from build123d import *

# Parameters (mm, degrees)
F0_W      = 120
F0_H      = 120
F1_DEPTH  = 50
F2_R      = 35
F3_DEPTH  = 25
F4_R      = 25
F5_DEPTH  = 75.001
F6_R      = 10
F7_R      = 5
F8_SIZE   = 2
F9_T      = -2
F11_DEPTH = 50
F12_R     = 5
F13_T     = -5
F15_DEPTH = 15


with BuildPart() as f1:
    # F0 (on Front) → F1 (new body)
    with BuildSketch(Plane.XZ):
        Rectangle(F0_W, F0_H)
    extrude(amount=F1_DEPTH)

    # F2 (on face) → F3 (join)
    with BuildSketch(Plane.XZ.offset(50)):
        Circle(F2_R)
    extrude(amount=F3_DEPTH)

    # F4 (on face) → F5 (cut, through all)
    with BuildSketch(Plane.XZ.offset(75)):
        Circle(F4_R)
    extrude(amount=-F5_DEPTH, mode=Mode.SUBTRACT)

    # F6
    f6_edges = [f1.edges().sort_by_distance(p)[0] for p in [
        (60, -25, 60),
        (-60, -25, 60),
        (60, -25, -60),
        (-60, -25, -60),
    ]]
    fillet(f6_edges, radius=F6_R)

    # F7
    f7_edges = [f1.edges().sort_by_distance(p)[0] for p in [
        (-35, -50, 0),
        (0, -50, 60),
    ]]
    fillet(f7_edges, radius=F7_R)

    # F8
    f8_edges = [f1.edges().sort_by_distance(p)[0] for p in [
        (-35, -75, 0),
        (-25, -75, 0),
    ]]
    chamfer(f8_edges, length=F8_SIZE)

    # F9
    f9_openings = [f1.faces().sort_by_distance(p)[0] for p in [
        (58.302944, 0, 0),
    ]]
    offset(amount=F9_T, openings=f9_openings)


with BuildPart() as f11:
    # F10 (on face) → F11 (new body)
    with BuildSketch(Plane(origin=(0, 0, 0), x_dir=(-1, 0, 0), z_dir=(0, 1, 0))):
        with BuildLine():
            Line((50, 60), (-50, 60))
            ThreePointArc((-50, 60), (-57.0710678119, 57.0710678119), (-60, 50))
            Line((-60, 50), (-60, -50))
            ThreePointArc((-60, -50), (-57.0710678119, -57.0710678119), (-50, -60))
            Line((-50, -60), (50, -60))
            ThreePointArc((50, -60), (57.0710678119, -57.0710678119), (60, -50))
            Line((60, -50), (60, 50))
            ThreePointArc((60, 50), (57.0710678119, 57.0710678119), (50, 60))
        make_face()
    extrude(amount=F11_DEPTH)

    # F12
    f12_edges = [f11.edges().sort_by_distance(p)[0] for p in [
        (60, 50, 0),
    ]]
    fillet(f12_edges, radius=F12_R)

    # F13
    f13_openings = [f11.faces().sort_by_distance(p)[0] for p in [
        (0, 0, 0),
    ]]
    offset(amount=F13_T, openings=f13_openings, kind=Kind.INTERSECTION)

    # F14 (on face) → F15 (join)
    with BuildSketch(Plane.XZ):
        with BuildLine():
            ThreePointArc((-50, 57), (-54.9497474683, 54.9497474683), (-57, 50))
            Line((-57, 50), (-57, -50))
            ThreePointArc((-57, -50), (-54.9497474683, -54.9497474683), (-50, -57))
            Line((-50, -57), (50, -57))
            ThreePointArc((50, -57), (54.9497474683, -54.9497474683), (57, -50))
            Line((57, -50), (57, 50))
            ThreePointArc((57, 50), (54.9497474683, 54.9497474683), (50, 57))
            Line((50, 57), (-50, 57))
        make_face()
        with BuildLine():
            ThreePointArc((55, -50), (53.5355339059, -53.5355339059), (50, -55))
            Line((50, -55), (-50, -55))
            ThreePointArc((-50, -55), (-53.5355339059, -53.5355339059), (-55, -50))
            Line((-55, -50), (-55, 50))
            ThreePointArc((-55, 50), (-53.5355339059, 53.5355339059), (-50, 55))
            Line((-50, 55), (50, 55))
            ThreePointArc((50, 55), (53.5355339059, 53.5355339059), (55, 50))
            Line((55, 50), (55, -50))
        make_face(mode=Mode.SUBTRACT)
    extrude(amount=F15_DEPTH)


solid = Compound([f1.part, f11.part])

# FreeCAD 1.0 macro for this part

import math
import FreeCAD as App
import Part
import Sketcher


def edges_at(feature, points):
    """Names of the edges that pass closest to the given points."""
    edges = feature.Shape.Edges
    near = lambda p: min(range(len(edges)), key=lambda i: edges[i].distToShape(Part.Vertex(*p))[0])
    return sorted({f"Edge{near(p) + 1}" for p in points})


def faces_at(feature, points):
    """Names of the faces that lie closest to the given points."""
    faces = feature.Shape.Faces
    near = lambda p: min(range(len(faces)), key=lambda i: faces[i].distToShape(Part.Vertex(*p))[0])
    return sorted({f"Face{near(p) + 1}" for p in points})

doc = App.newDocument("Part")
body = doc.addObject("PartDesign::Body", "Body")

# Sketch on XZ plane
sketch1 = body.newObject("Sketcher::SketchObject", "Sketch")
sketch1.AttachmentSupport = (doc.getObject("XZ_Plane"), [""])
sketch1.MapMode = "FlatFace"
sketch1.addGeometry(Part.LineSegment(App.Vector(-60, 60, 0), App.Vector(-60, -60, 0)), False)
sketch1.addGeometry(Part.LineSegment(App.Vector(-60, -60, 0), App.Vector(60, -60, 0)), False)
sketch1.addGeometry(Part.LineSegment(App.Vector(60, -60, 0), App.Vector(60, 60, 0)), False)
sketch1.addGeometry(Part.LineSegment(App.Vector(60, 60, 0), App.Vector(-60, 60, 0)), False)
sketch1.addConstraint(Sketcher.Constraint("Coincident", 0, 2, 1, 1))
sketch1.addConstraint(Sketcher.Constraint("Coincident", 1, 2, 2, 1))
sketch1.addConstraint(Sketcher.Constraint("Coincident", 2, 2, 3, 1))
sketch1.addConstraint(Sketcher.Constraint("Coincident", 3, 2, 0, 1))
sketch1.addConstraint(Sketcher.Constraint("Vertical", 0))
sketch1.addConstraint(Sketcher.Constraint("Horizontal", 1))
sketch1.addConstraint(Sketcher.Constraint("Vertical", 2))
sketch1.addConstraint(Sketcher.Constraint("Horizontal", 3))
sketch1.addConstraint(Sketcher.Constraint("Symmetric", 0, 2, 2, 2, -1, 1))
sketch1.addConstraint(Sketcher.Constraint("Equal", 3, 0))
sketch1.addConstraint(Sketcher.Constraint("DistanceX", 1, 1, 1, 2, 120.0))
pad1 = body.newObject("PartDesign::Pad", "Pad")
pad1.Profile = sketch1
pad1.Length = 50

# Sketch on XZ plane
sketch2 = body.newObject("Sketcher::SketchObject", "Sketch001")
sketch2.AttachmentSupport = (doc.getObject("XZ_Plane"), [""])
sketch2.MapMode = "FlatFace"
sketch2.AttachmentOffset = App.Placement(App.Vector(0, 0, 50), App.Rotation())
sketch2.addGeometry(Part.Circle(App.Vector(0, 0, 0), App.Vector(0, 0, 1), 35), False)
sketch2.addConstraint(Sketcher.Constraint("Coincident", 0, 3, -1, 1))
sketch2.addConstraint(Sketcher.Constraint("Diameter", 0, 70.0))
pad2 = body.newObject("PartDesign::Pad", "Pad001")
pad2.Profile = sketch2
pad2.Length = 25

# Sketch on XZ plane
sketch3 = body.newObject("Sketcher::SketchObject", "Sketch002")
sketch3.AttachmentSupport = (doc.getObject("XZ_Plane"), [""])
sketch3.MapMode = "FlatFace"
sketch3.AttachmentOffset = App.Placement(App.Vector(0, 0, 75), App.Rotation())
sketch3.addGeometry(Part.Circle(App.Vector(0, 0, 0), App.Vector(0, 0, 1), 25), False)
sketch3.addConstraint(Sketcher.Constraint("Coincident", 0, 3, -1, 1))
sketch3.addConstraint(Sketcher.Constraint("Diameter", 0, 50.0))
pocket1 = body.newObject("PartDesign::Pocket", "Pocket")
pocket1.Profile = sketch3
pocket1.Type = "ThroughAll"
doc.recompute()

fillet = body.newObject("PartDesign::Fillet", "Fillet")
fillet.Base = (pocket1, edges_at(pocket1, [
    (60, -25, 60),
    (-60, -25, 60),
    (60, -25, -60),
    (-60, -25, -60),
]))
fillet.Radius = 10
doc.recompute()

fillet2 = body.newObject("PartDesign::Fillet", "Fillet001")
fillet2.Base = (fillet, edges_at(fillet, [(-35, -50, 0), (0, -50, 60)]))
fillet2.Radius = 5
doc.recompute()

chamfer = body.newObject("PartDesign::Chamfer", "Chamfer")
chamfer.Base = (fillet2, edges_at(fillet2, [(-35, -75, 0), (-25, -75, 0)]))
chamfer.Size = 2
doc.recompute()

thickness = body.newObject("PartDesign::Thickness", "Thickness")
thickness.Base = (chamfer, faces_at(chamfer, [(-24, 0, -24)]))
thickness.Value = 2
thickness.Reversed = True
thickness.Join = "Arc"
body2 = doc.addObject("PartDesign::Body", "Body001")

# Sketch on XZ plane
sketch4 = body2.newObject("Sketcher::SketchObject", "Sketch003")
sketch4.AttachmentSupport = (doc.getObject("XZ_Plane001"), [""])
sketch4.MapMode = "FlatFace"
sketch4.addGeometry(Part.LineSegment(App.Vector(-50, 60, 0), App.Vector(50, 60, 0)), False)
sketch4.addGeometry(Part.ArcOfCircle(Part.Circle(App.Vector(50, 50, 0), App.Vector(0, 0, 1), 10), math.radians(0), math.radians(90)), False)
sketch4.addGeometry(Part.LineSegment(App.Vector(60, 50, 0), App.Vector(60, -50, 0)), False)
sketch4.addGeometry(Part.ArcOfCircle(Part.Circle(App.Vector(50, -50, 0), App.Vector(0, 0, 1), 10), math.radians(-90), math.radians(0)), False)
sketch4.addGeometry(Part.LineSegment(App.Vector(50, -60, 0), App.Vector(-50, -60, 0)), False)
sketch4.addGeometry(Part.ArcOfCircle(Part.Circle(App.Vector(-50, -50, 0), App.Vector(0, 0, 1), 10), math.radians(180), math.radians(270)), False)
sketch4.addGeometry(Part.LineSegment(App.Vector(-60, -50, 0), App.Vector(-60, 50, 0)), False)
sketch4.addGeometry(Part.ArcOfCircle(Part.Circle(App.Vector(-50, 50, 0), App.Vector(0, 0, 1), 10), math.radians(90), math.radians(180)), False)
sketch4.addConstraint(Sketcher.Constraint("Tangent", 0, 2, 1, 2))
sketch4.addConstraint(Sketcher.Constraint("Tangent", 1, 1, 2, 1))
sketch4.addConstraint(Sketcher.Constraint("Tangent", 2, 2, 3, 2))
sketch4.addConstraint(Sketcher.Constraint("Tangent", 3, 1, 4, 1))
sketch4.addConstraint(Sketcher.Constraint("Tangent", 4, 2, 5, 2))
sketch4.addConstraint(Sketcher.Constraint("Tangent", 5, 1, 6, 1))
sketch4.addConstraint(Sketcher.Constraint("Tangent", 6, 2, 7, 2))
sketch4.addConstraint(Sketcher.Constraint("Tangent", 7, 1, 0, 1))
sketch4.addConstraint(Sketcher.Constraint("Horizontal", 0))
sketch4.addConstraint(Sketcher.Constraint("Vertical", 2))
sketch4.addConstraint(Sketcher.Constraint("Horizontal", 4))
sketch4.addConstraint(Sketcher.Constraint("Vertical", 6))
sketch4.addConstraint(Sketcher.Constraint("Equal", 1, 3))
sketch4.addConstraint(Sketcher.Constraint("Equal", 3, 5))
sketch4.addConstraint(Sketcher.Constraint("Equal", 5, 7))
sketch4.addConstraint(Sketcher.Constraint("Symmetric", 1, 3, 5, 3, -1, 1))
sketch4.addConstraint(Sketcher.Constraint("Equal", 4, 2))
sketch4.addConstraint(Sketcher.Constraint("Radius", 1, 10.0))
sketch4.addConstraint(Sketcher.Constraint("DistanceX", 0, 1, 0, 2, 100.0))
pad3 = body2.newObject("PartDesign::Pad", "Pad002")
pad3.Profile = sketch4
pad3.Length = 50
pad3.Reversed = True
doc.recompute()

fillet3 = body2.newObject("PartDesign::Fillet", "Fillet002")
fillet3.Base = (pad3, edges_at(pad3, [(60, 50, 0)]))
fillet3.Radius = 5
doc.recompute()

thickness2 = body2.newObject("PartDesign::Thickness", "Thickness001")
thickness2.Base = (fillet3, faces_at(fillet3, [(0, 0, 0)]))
thickness2.Value = 5
thickness2.Reversed = True
thickness2.Join = "Intersection"

# Sketch on XZ plane
sketch5 = body2.newObject("Sketcher::SketchObject", "Sketch004")
sketch5.AttachmentSupport = (doc.getObject("XZ_Plane001"), [""])
sketch5.MapMode = "FlatFace"
sketch5.addGeometry(Part.ArcOfCircle(Part.Circle(App.Vector(-50, 50, 0), App.Vector(0, 0, 1), 7), math.radians(90), math.radians(180)), False)
sketch5.addGeometry(Part.LineSegment(App.Vector(-57, 50, 0), App.Vector(-57, -50, 0)), False)
sketch5.addGeometry(Part.ArcOfCircle(Part.Circle(App.Vector(-50, -50, 0), App.Vector(0, 0, 1), 7), math.radians(180), math.radians(270)), False)
sketch5.addGeometry(Part.LineSegment(App.Vector(-50, -57, 0), App.Vector(50, -57, 0)), False)
sketch5.addGeometry(Part.ArcOfCircle(Part.Circle(App.Vector(50, -50, 0), App.Vector(0, 0, 1), 7), math.radians(-90), math.radians(0)), False)
sketch5.addGeometry(Part.LineSegment(App.Vector(57, -50, 0), App.Vector(57, 50, 0)), False)
sketch5.addGeometry(Part.ArcOfCircle(Part.Circle(App.Vector(50, 50, 0), App.Vector(0, 0, 1), 7), math.radians(0), math.radians(90)), False)
sketch5.addGeometry(Part.LineSegment(App.Vector(50, 57, 0), App.Vector(-50, 57, 0)), False)
sketch5.addGeometry(Part.LineSegment(App.Vector(55, 50, 0), App.Vector(55, -50, 0)), False)
sketch5.addGeometry(Part.ArcOfCircle(Part.Circle(App.Vector(50, -50, 0), App.Vector(0, 0, 1), 5), math.radians(-90), math.radians(0)), False)
sketch5.addGeometry(Part.LineSegment(App.Vector(50, -55, 0), App.Vector(-50, -55, 0)), False)
sketch5.addGeometry(Part.ArcOfCircle(Part.Circle(App.Vector(-50, -50, 0), App.Vector(0, 0, 1), 5), math.radians(180), math.radians(270)), False)
sketch5.addGeometry(Part.LineSegment(App.Vector(-55, -50, 0), App.Vector(-55, 50, 0)), False)
sketch5.addGeometry(Part.ArcOfCircle(Part.Circle(App.Vector(-50, 50, 0), App.Vector(0, 0, 1), 5), math.radians(90), math.radians(180)), False)
sketch5.addGeometry(Part.LineSegment(App.Vector(-50, 55, 0), App.Vector(50, 55, 0)), False)
sketch5.addGeometry(Part.ArcOfCircle(Part.Circle(App.Vector(50, 50, 0), App.Vector(0, 0, 1), 5), math.radians(0), math.radians(90)), False)
sketch5.addConstraint(Sketcher.Constraint("Tangent", 0, 2, 1, 1))
sketch5.addConstraint(Sketcher.Constraint("Tangent", 1, 2, 2, 1))
sketch5.addConstraint(Sketcher.Constraint("Tangent", 2, 2, 3, 1))
sketch5.addConstraint(Sketcher.Constraint("Tangent", 3, 2, 4, 1))
sketch5.addConstraint(Sketcher.Constraint("Tangent", 4, 2, 5, 1))
sketch5.addConstraint(Sketcher.Constraint("Tangent", 5, 2, 6, 1))
sketch5.addConstraint(Sketcher.Constraint("Tangent", 6, 2, 7, 1))
sketch5.addConstraint(Sketcher.Constraint("Tangent", 7, 2, 0, 1))
sketch5.addConstraint(Sketcher.Constraint("Tangent", 8, 2, 9, 2))
sketch5.addConstraint(Sketcher.Constraint("Tangent", 9, 1, 10, 1))
sketch5.addConstraint(Sketcher.Constraint("Tangent", 10, 2, 11, 2))
sketch5.addConstraint(Sketcher.Constraint("Tangent", 11, 1, 12, 1))
sketch5.addConstraint(Sketcher.Constraint("Tangent", 12, 2, 13, 2))
sketch5.addConstraint(Sketcher.Constraint("Tangent", 13, 1, 14, 1))
sketch5.addConstraint(Sketcher.Constraint("Tangent", 14, 2, 15, 2))
sketch5.addConstraint(Sketcher.Constraint("Tangent", 15, 1, 8, 1))
sketch5.addConstraint(Sketcher.Constraint("Vertical", 1))
sketch5.addConstraint(Sketcher.Constraint("Horizontal", 3))
sketch5.addConstraint(Sketcher.Constraint("Vertical", 5))
sketch5.addConstraint(Sketcher.Constraint("Horizontal", 7))
sketch5.addConstraint(Sketcher.Constraint("Vertical", 8))
sketch5.addConstraint(Sketcher.Constraint("Horizontal", 10))
sketch5.addConstraint(Sketcher.Constraint("Vertical", 12))
sketch5.addConstraint(Sketcher.Constraint("Horizontal", 14))
sketch5.addConstraint(Sketcher.Constraint("Coincident", 9, 3, 4, 3))
sketch5.addConstraint(Sketcher.Constraint("Coincident", 11, 3, 2, 3))
sketch5.addConstraint(Sketcher.Constraint("Coincident", 13, 3, 0, 3))
sketch5.addConstraint(Sketcher.Constraint("Equal", 0, 2))
sketch5.addConstraint(Sketcher.Constraint("Equal", 2, 4))
sketch5.addConstraint(Sketcher.Constraint("Equal", 4, 6))
sketch5.addConstraint(Sketcher.Constraint("Equal", 13, 15))
sketch5.addConstraint(Sketcher.Constraint("Symmetric", 0, 3, 4, 3, -1, 1))
sketch5.addConstraint(Sketcher.Constraint("Equal", 14, 1))
sketch5.addConstraint(Sketcher.Constraint("Radius", 0, 7.0))
sketch5.addConstraint(Sketcher.Constraint("Radius", 9, 5.0))
sketch5.addConstraint(Sketcher.Constraint("DistanceX", 3, 1, 3, 2, 100.0))
pad4 = body2.newObject("PartDesign::Pad", "Pad003")
pad4.Profile = sketch5
pad4.Length = 15

doc.recompute()
